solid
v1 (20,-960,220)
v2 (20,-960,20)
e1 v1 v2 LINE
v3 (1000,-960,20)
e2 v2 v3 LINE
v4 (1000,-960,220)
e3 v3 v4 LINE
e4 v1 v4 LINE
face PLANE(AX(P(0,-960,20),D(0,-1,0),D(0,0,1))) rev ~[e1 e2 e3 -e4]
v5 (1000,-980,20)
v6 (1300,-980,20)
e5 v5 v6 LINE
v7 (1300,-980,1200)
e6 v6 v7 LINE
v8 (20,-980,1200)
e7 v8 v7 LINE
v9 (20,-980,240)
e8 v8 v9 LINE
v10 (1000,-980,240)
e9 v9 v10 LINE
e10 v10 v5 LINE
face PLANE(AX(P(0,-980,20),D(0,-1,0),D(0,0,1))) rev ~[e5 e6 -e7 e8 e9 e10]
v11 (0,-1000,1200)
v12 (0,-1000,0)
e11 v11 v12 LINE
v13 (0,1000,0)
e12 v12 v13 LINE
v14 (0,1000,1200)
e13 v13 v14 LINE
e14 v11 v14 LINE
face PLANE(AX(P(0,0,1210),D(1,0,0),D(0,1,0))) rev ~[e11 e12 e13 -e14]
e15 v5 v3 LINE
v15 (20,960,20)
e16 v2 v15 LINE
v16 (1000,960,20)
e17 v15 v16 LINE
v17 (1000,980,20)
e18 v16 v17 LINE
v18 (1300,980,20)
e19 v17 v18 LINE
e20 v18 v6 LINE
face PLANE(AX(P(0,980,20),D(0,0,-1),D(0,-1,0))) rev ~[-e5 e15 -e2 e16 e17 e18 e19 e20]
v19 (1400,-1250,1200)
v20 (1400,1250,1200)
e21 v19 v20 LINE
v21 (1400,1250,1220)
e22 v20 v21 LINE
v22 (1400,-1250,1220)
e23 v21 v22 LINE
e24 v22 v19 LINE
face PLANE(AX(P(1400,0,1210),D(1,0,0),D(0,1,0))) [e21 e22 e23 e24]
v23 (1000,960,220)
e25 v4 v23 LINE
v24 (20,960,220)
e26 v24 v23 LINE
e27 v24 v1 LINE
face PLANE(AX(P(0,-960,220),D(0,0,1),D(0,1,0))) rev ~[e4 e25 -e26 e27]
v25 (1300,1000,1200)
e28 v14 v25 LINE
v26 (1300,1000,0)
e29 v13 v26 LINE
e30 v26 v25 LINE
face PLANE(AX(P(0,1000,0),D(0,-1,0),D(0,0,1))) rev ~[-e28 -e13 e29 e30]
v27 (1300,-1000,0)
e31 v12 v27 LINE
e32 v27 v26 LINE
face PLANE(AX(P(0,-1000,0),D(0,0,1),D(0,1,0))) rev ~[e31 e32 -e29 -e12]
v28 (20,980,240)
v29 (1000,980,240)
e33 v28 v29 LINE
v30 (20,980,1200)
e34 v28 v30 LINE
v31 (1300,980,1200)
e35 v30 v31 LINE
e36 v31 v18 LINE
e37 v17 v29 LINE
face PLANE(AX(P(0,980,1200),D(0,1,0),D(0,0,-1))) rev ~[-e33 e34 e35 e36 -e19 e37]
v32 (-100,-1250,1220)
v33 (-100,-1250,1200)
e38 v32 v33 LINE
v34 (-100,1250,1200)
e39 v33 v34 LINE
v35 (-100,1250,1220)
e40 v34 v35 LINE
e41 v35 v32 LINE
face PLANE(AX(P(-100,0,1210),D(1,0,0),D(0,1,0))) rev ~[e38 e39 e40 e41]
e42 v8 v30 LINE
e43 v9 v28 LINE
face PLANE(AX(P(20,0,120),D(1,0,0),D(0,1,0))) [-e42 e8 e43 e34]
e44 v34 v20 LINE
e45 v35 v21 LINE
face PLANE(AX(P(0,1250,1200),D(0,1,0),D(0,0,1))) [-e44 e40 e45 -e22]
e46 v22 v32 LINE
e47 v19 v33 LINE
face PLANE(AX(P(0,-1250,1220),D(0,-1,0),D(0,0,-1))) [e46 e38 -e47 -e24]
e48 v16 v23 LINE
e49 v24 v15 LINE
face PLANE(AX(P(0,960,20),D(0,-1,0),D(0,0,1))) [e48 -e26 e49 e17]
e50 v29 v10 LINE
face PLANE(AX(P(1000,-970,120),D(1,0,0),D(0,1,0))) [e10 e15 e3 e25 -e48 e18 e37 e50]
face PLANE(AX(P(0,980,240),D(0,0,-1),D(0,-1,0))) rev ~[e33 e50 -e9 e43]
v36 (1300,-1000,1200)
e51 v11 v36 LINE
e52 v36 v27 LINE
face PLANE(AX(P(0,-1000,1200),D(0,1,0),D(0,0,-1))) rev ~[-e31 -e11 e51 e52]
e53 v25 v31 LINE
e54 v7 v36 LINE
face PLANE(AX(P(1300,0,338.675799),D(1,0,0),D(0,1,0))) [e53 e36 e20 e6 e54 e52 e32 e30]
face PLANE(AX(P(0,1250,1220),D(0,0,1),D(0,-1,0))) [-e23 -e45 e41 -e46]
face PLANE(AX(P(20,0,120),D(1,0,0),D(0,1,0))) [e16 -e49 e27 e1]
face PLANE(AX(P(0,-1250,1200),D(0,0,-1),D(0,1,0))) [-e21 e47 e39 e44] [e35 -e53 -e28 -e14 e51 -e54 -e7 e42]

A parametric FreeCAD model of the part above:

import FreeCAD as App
import Part
import Sketcher
from FreeCAD import Vector

doc = App.newDocument("Part")
body = doc.addObject("PartDesign::Body", "Body")

sketch1 = doc.addObject("Sketcher::SketchObject", "Sketch")
body.addObject(sketch1)
sketch1.AttachmentSupport = (doc.YZ_Plane, [""])
sketch1.MapMode = "FlatFace"
sketch1.addGeometry([
    Part.LineSegment(Vector(-1000, 1200, 0), Vector(-1000, 0, 0)),
    Part.LineSegment(Vector(-1000, 0, 0), Vector(1000, 0, 0)),
    Part.LineSegment(Vector(1000, 0, 0), Vector(1000, 1200, 0)),
    Part.LineSegment(Vector(1000, 1200, 0), Vector(980, 1200, 0)),
    Part.LineSegment(Vector(980, 1200, 0), Vector(980, 20, 0)),
    Part.LineSegment(Vector(980, 20, 0), Vector(-980, 20, 0)),
    Part.LineSegment(Vector(-980, 20, 0), Vector(-980, 1200, 0)),
    Part.LineSegment(Vector(-980, 1200, 0), Vector(-1000, 1200, 0)),
], False)
sketch1.addConstraint([
    Sketcher.Constraint("Coincident", 0, 2, 1, 1),
    Sketcher.Constraint("Coincident", 1, 2, 2, 1),
    Sketcher.Constraint("Coincident", 2, 2, 3, 1),
    Sketcher.Constraint("Coincident", 3, 2, 4, 1),
    Sketcher.Constraint("Coincident", 4, 2, 5, 1),
    Sketcher.Constraint("Coincident", 5, 2, 6, 1),
    Sketcher.Constraint("Coincident", 6, 2, 7, 1),
    Sketcher.Constraint("Coincident", 7, 2, 0, 1),
    Sketcher.Constraint("Vertical", 0),
    Sketcher.Constraint("Horizontal", 1),
    Sketcher.Constraint("Vertical", 2),
    Sketcher.Constraint("Horizontal", 3),
    Sketcher.Constraint("Vertical", 4),
    Sketcher.Constraint("Horizontal", 5),
    Sketcher.Constraint("Vertical", 6),
    Sketcher.Constraint("Horizontal", 7),
    Sketcher.Constraint("Symmetric", 0, 2, 1, 2, -1, 1),
    Sketcher.Constraint("Symmetric", 3, 2, 6, 2, -2),
    Sketcher.Constraint("DistanceX", 1, 1, 1, 2, 2000.0),
    Sketcher.Constraint("DistanceX", 3, 2, 3, 1, 20.0),
    Sketcher.Constraint("DistanceY", 0, 2, 0, 1, 1200.0),
    Sketcher.Constraint("DistanceY", 4, 2, 4, 1, 1180.0),
])
pad1 = doc.addObject("PartDesign::Pad", "Pad")
body.addObject(pad1)
pad1.Profile = sketch1
pad1.Length = 1300

sketch2 = doc.addObject("Sketcher::SketchObject", "Sketch001")
body.addObject(sketch2)
sketch2.AttachmentSupport = (doc.YZ_Plane, [""])
sketch2.MapMode = "FlatFace"
sketch2.addGeometry([
    Part.LineSegment(Vector(980, 20, 0), Vector(980, 1200, 0)),
    Part.LineSegment(Vector(980, 1200, 0), Vector(-980, 1200, 0)),
    Part.LineSegment(Vector(-980, 1200, 0), Vector(-980, 20, 0)),
    Part.LineSegment(Vector(-980, 20, 0), Vector(980, 20, 0)),
], False)
sketch2.addConstraint([
    Sketcher.Constraint("Coincident", 0, 2, 1, 1),
    Sketcher.Constraint("Coincident", 1, 2, 2, 1),
    Sketcher.Constraint("Coincident", 2, 2, 3, 1),
    Sketcher.Constraint("Coincident", 3, 2, 0, 1),
    Sketcher.Constraint("Vertical", 0),
    Sketcher.Constraint("Horizontal", 1),
    Sketcher.Constraint("Vertical", 2),
    Sketcher.Constraint("Horizontal", 3),
    Sketcher.Constraint("DistanceX", 1, 2, 1, 1, 1960.0),
    Sketcher.Constraint("DistanceY", 0, 1, 0, 2, 1180.0),
    Sketcher.Constraint("DistanceX", -1, 1, 0, 2, 980.0),
    Sketcher.Constraint("DistanceY", -1, 1, 0, 2, 1200.0),
])
pad2 = doc.addObject("PartDesign::Pad", "Pad001")
body.addObject(pad2)
pad2.Profile = sketch2
pad2.Length = 20

sketch3 = doc.addObject("Sketcher::SketchObject", "Sketch002")
body.addObject(sketch3)
sketch3.AttachmentSupport = (doc.YZ_Plane, [""])
sketch3.MapMode = "FlatFace"
sketch3.addGeometry([
    Part.LineSegment(Vector(-980, 20, 0), Vector(-960, 20, 0)),
    Part.LineSegment(Vector(-960, 20, 0), Vector(-960, 220, 0)),
    Part.LineSegment(Vector(-960, 220, 0), Vector(960, 220, 0)),
    Part.LineSegment(Vector(960, 220, 0), Vector(960, 20, 0)),
    Part.LineSegment(Vector(960, 20, 0), Vector(980, 20, 0)),
    Part.LineSegment(Vector(980, 20, 0), Vector(980, 240, 0)),
    Part.LineSegment(Vector(980, 240, 0), Vector(-980, 240, 0)),
    Part.LineSegment(Vector(-980, 240, 0), Vector(-980, 20, 0)),
], False)
sketch3.addConstraint([
    Sketcher.Constraint("Coincident", 0, 2, 1, 1),
    Sketcher.Constraint("Coincident", 1, 2, 2, 1),
    Sketcher.Constraint("Coincident", 2, 2, 3, 1),
    Sketcher.Constraint("Coincident", 3, 2, 4, 1),
    Sketcher.Constraint("Coincident", 4, 2, 5, 1),
    Sketcher.Constraint("Coincident", 5, 2, 6, 1),
    Sketcher.Constraint("Coincident", 6, 2, 7, 1),
    Sketcher.Constraint("Coincident", 7, 2, 0, 1),
    Sketcher.Constraint("Horizontal", 0),
    Sketcher.Constraint("Vertical", 1),
    Sketcher.Constraint("Horizontal", 2),
    Sketcher.Constraint("Vertical", 3),
    Sketcher.Constraint("Horizontal", 4),
    Sketcher.Constraint("Vertical", 5),
    Sketcher.Constraint("Horizontal", 6),
    Sketcher.Constraint("Vertical", 7),
    Sketcher.Constraint("Symmetric", 0, 2, 3, 2, -2),
    Sketcher.Constraint("Equal", 0, 4),
    Sketcher.Constraint("DistanceX", 0, 1, 0, 2, 20.0),
    Sketcher.Constraint("DistanceX", 2, 1, 2, 2, 1920.0),
    Sketcher.Constraint("DistanceY", 1, 1, 1, 2, 200.0),
    Sketcher.Constraint("DistanceY", 5, 1, 5, 2, 220.0),
    Sketcher.Constraint("DistanceY", -1, 1, 0, 2, 20.0),
])
pad3 = doc.addObject("PartDesign::Pad", "Pad002")
body.addObject(pad3)
pad3.Profile = sketch3
pad3.Length = 1000

sketch4 = doc.addObject("Sketcher::SketchObject", "Sketch003")
body.addObject(sketch4)
sketch4.AttachmentSupport = (doc.YZ_Plane, [""])
sketch4.MapMode = "FlatFace"
sketch4.addGeometry([
    Part.LineSegment(Vector(-1250, 1200, 0), Vector(1250, 1200, 0)),
    Part.LineSegment(Vector(1250, 1200, 0), Vector(1250, 1220, 0)),
    Part.LineSegment(Vector(1250, 1220, 0), Vector(-1250, 1220, 0)),
    Part.LineSegment(Vector(-1250, 1220, 0), Vector(-1250, 1200, 0)),
], False)
sketch4.addConstraint([
    Sketcher.Constraint("Coincident", 0, 2, 1, 1),
    Sketcher.Constraint("Coincident", 1, 2, 2, 1),
    Sketcher.Constraint("Coincident", 2, 2, 3, 1),
    Sketcher.Constraint("Coincident", 3, 2, 0, 1),
    Sketcher.Constraint("Horizontal", 0),
    Sketcher.Constraint("Vertical", 1),
    Sketcher.Constraint("Horizontal", 2),
    Sketcher.Constraint("Vertical", 3),
    Sketcher.Constraint("DistanceX", 0, 1, 0, 2, 2500.0),
    Sketcher.Constraint("DistanceY", 1, 1, 1, 2, 20.0),
    Sketcher.Constraint("DistanceX", -1, 1, 0, 2, 1250.0),
    Sketcher.Constraint("DistanceY", -1, 1, 0, 2, 1200.0),
])
pad4 = doc.addObject("PartDesign::Pad", "Pad003")
body.addObject(pad4)
pad4.Profile = sketch4
pad4.Type = "TwoLengths"
pad4.Length = 1400
pad4.Length2 = 100

doc.recompute()
